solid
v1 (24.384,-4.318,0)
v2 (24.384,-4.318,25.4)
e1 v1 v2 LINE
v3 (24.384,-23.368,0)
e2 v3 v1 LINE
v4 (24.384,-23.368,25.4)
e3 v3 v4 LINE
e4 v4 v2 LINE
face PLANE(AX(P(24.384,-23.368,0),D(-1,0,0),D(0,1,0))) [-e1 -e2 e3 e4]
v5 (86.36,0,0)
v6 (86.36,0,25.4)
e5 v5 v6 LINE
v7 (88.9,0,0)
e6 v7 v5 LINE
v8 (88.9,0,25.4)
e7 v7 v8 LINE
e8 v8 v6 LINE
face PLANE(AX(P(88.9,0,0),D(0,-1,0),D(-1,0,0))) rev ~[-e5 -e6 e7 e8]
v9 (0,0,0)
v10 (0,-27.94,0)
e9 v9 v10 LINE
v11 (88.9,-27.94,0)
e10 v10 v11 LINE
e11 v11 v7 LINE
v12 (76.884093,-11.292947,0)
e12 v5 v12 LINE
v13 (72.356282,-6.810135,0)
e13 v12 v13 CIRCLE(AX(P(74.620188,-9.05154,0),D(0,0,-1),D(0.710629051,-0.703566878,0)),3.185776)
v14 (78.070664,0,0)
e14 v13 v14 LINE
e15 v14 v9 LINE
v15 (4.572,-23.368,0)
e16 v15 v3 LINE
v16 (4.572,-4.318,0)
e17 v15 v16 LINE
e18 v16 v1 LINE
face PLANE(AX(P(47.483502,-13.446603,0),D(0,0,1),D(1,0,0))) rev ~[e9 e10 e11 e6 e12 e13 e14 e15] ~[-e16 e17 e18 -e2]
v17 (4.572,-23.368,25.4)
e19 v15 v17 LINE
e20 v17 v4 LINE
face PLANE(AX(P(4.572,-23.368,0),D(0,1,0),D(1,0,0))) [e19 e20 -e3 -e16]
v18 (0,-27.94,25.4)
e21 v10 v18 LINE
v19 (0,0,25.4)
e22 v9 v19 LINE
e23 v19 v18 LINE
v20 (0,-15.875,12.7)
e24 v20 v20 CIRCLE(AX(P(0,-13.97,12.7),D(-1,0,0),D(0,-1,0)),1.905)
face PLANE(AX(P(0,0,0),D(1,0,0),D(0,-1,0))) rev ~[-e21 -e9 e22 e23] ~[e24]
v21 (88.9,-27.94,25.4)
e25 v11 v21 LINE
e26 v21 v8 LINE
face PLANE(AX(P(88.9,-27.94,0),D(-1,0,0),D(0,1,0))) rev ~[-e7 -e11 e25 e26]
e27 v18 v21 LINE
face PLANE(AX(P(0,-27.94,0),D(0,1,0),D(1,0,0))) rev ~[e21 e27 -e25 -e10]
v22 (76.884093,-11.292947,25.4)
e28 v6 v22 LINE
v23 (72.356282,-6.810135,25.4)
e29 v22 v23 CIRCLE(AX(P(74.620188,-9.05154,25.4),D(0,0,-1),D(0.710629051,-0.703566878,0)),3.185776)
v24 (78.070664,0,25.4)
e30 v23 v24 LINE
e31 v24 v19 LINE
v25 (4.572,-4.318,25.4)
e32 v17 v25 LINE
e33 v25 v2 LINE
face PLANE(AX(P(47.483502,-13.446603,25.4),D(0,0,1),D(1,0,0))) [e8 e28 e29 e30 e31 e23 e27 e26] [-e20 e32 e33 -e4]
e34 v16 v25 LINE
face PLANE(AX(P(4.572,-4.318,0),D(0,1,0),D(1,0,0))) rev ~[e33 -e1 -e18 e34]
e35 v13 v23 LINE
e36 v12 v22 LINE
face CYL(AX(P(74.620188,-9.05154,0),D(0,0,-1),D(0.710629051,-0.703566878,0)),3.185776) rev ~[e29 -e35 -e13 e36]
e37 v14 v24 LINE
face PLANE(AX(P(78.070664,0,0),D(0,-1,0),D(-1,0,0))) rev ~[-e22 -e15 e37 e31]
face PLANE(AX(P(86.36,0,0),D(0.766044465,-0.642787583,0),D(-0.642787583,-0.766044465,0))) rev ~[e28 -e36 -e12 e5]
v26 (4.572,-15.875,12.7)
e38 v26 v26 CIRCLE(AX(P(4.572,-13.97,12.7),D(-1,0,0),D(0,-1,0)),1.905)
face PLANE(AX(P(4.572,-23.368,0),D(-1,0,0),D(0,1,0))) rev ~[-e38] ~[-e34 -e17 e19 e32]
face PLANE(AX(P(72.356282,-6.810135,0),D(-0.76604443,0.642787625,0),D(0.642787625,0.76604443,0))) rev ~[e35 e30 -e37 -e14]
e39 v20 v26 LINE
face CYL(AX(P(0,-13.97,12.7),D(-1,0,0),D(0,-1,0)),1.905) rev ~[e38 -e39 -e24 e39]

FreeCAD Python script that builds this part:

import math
import FreeCAD as App
import Part
import Sketcher
Q = App.Units.Quantity

doc = App.newDocument("Part")
params = doc.addObject("Spreadsheet::Sheet", "Params")
for row, (alias, value) in enumerate([
    ("sketch1_width", "3.5 in"),
    ("sketch1_width2", "0.1 in"),
    ("sketch1_height", "1.1 in"),
    ("sketch1_width3", "0.78 in"),
    ("sketch1_height2", "0.75 in"),
    ("pad1_length", "1 in"),
    ("sketch2_diameter", "0.15 in"),
    ("pocket1_length", "0.3 in"),
], start=1):
    params.set(f"A{row}", alias)
    params.set(f"B{row}", "=" + value)
    params.setAlias(f"B{row}", alias)

body = doc.addObject("PartDesign::Body", "Body")

# Sketch on XY plane
sketch1 = body.newObject("Sketcher::SketchObject", "Sketch")
sketch1.AttachmentSupport = (doc.getObject("XY_Plane"), [""])
sketch1.MapMode = "FlatFace"
sketch1.addGeometry([
    Part.LineSegment(App.Vector(78.1, 0, 0), App.Vector(0, 0, 0)),  # 0
    Part.LineSegment(App.Vector(0, 0, 0), App.Vector(0, -27.9, 0)),  # 1
    Part.LineSegment(App.Vector(0, -27.9, 0), App.Vector(88.9, -27.9, 0)),  # 2
    Part.LineSegment(App.Vector(88.9, -27.9, 0), App.Vector(88.9, 0, 0)),  # 3
    Part.LineSegment(App.Vector(88.9, 0, 0), App.Vector(86.4, 0, 0)),  # 4
    Part.LineSegment(App.Vector(86.4, 0, 0), App.Vector(76.9, -11.3, 0)),  # 5
    Part.ArcOfCircle(Part.Circle(App.Vector(74.6, -9.1, 0), App.Vector(0, 0, 1), 3.2), math.radians(135), math.radians(315)),  # 6
    Part.LineSegment(App.Vector(72.4, -6.8, 0), App.Vector(78.1, 0, 0)),  # 7
    Part.LineSegment(App.Vector(24.4, -23.4, 0), App.Vector(4.6, -23.4, 0)),  # 8
    Part.LineSegment(App.Vector(4.6, -23.4, 0), App.Vector(4.6, -4.3, 0)),  # 9
    Part.LineSegment(App.Vector(4.6, -4.3, 0), App.Vector(24.4, -4.3, 0)),  # 10
    Part.LineSegment(App.Vector(24.4, -4.3, 0), App.Vector(24.4, -23.4, 0)),  # 11
], False)
sketch1.addConstraint([
    Sketcher.Constraint("Coincident", 0, 2, 1, 1),
    Sketcher.Constraint("Coincident", 1, 2, 2, 1),
    Sketcher.Constraint("Coincident", 2, 2, 3, 1),
    Sketcher.Constraint("Coincident", 3, 2, 4, 1),
    Sketcher.Constraint("Coincident", 4, 2, 5, 1),
    Sketcher.Constraint("Coincident", 5, 2, 6, 2),
    Sketcher.Constraint("Coincident", 6, 1, 7, 1),
    Sketcher.Constraint("Coincident", 7, 2, 0, 1),
    Sketcher.Constraint("Coincident", 8, 2, 9, 1),
    Sketcher.Constraint("Coincident", 9, 2, 10, 1),
    Sketcher.Constraint("Coincident", 10, 2, 11, 1),
    Sketcher.Constraint("Coincident", 11, 2, 8, 1),
    Sketcher.Constraint("Horizontal", 0),
    Sketcher.Constraint("Vertical", 1),
    Sketcher.Constraint("Horizontal", 2),
    Sketcher.Constraint("Vertical", 3),
    Sketcher.Constraint("Horizontal", 4),
    Sketcher.Constraint("Horizontal", 8),
    Sketcher.Constraint("Vertical", 9),
    Sketcher.Constraint("Horizontal", 10),
    Sketcher.Constraint("Vertical", 11),
    Sketcher.Constraint("Coincident", 0, 2, -1, 1),
    Sketcher.Constraint("PointOnObject", 3, 2, -1),
    Sketcher.Constraint("Parallel", 5, 7),
    Sketcher.Constraint("DistanceX", 2, 1, 2, 2, Q("3.5 in")),
    Sketcher.Constraint("DistanceX", 4, 2, 4, 1, Q("0.1 in")),
    Sketcher.Constraint("DistanceY", 1, 2, 1, 1, Q("1.1 in")),
    Sketcher.Constraint("Angle", 5, Q("-129.999998 deg")),
    Sketcher.Constraint("DistanceX", 8, 2, 8, 1, Q("0.78 in")),
    Sketcher.Constraint("DistanceY", 9, 1, 9, 2, Q("0.75 in")),
    Sketcher.Constraint("Distance", 7, Q("0.35 in")),
    Sketcher.Constraint("DistanceX", -1, 1, 8, 2, Q("0.18 in")),
    Sketcher.Constraint("DistanceY", 8, 2, -1, 1, Q("0.92 in")),
    Sketcher.Constraint("Radius", 6, Q("3.185776 mm")),
    Sketcher.Constraint("DistanceX", 0, 2, 0, 1, Q("78.070664 mm")),
    Sketcher.Constraint("DistanceY", 6, 3, -1, 1, Q("9.05154 mm")),
])
sketch1.setExpression("Constraints[24]", "Params.sketch1_width")
sketch1.setExpression("Constraints[25]", "Params.sketch1_width2")
sketch1.setExpression("Constraints[26]", "Params.sketch1_height")
sketch1.setExpression("Constraints[28]", "Params.sketch1_width3")
sketch1.setExpression("Constraints[29]", "Params.sketch1_height2")
pad1 = body.newObject("PartDesign::Pad", "Pad")
pad1.Profile = sketch1
pad1.setExpression("Length", "Params.pad1_length")

# Sketch on YZ plane
sketch2 = body.newObject("Sketcher::SketchObject", "Sketch001")
sketch2.AttachmentSupport = (doc.getObject("YZ_Plane"), [""])
sketch2.MapMode = "FlatFace"
sketch2.addGeometry(Part.Circle(App.Vector(-14, 12.7, 0), App.Vector(0, 0, 1), 1.9), False)
sketch2.addConstraint([
    Sketcher.Constraint("Diameter", 0, Q("0.15 in")),
    Sketcher.Constraint("DistanceY", -1, 1, 0, 3, Q("0.5 in")),
    Sketcher.Constraint("DistanceX", 0, 3, -1, 1, Q("0.55 in")),
])
sketch2.setExpression("Constraints[0]", "Params.sketch2_diameter")
pocket1 = body.newObject("PartDesign::Pocket", "Pocket")
pocket1.Profile = sketch2
pocket1.setExpression("Length", "Params.pocket1_length")
pocket1.Reversed = True

doc.recompute()
